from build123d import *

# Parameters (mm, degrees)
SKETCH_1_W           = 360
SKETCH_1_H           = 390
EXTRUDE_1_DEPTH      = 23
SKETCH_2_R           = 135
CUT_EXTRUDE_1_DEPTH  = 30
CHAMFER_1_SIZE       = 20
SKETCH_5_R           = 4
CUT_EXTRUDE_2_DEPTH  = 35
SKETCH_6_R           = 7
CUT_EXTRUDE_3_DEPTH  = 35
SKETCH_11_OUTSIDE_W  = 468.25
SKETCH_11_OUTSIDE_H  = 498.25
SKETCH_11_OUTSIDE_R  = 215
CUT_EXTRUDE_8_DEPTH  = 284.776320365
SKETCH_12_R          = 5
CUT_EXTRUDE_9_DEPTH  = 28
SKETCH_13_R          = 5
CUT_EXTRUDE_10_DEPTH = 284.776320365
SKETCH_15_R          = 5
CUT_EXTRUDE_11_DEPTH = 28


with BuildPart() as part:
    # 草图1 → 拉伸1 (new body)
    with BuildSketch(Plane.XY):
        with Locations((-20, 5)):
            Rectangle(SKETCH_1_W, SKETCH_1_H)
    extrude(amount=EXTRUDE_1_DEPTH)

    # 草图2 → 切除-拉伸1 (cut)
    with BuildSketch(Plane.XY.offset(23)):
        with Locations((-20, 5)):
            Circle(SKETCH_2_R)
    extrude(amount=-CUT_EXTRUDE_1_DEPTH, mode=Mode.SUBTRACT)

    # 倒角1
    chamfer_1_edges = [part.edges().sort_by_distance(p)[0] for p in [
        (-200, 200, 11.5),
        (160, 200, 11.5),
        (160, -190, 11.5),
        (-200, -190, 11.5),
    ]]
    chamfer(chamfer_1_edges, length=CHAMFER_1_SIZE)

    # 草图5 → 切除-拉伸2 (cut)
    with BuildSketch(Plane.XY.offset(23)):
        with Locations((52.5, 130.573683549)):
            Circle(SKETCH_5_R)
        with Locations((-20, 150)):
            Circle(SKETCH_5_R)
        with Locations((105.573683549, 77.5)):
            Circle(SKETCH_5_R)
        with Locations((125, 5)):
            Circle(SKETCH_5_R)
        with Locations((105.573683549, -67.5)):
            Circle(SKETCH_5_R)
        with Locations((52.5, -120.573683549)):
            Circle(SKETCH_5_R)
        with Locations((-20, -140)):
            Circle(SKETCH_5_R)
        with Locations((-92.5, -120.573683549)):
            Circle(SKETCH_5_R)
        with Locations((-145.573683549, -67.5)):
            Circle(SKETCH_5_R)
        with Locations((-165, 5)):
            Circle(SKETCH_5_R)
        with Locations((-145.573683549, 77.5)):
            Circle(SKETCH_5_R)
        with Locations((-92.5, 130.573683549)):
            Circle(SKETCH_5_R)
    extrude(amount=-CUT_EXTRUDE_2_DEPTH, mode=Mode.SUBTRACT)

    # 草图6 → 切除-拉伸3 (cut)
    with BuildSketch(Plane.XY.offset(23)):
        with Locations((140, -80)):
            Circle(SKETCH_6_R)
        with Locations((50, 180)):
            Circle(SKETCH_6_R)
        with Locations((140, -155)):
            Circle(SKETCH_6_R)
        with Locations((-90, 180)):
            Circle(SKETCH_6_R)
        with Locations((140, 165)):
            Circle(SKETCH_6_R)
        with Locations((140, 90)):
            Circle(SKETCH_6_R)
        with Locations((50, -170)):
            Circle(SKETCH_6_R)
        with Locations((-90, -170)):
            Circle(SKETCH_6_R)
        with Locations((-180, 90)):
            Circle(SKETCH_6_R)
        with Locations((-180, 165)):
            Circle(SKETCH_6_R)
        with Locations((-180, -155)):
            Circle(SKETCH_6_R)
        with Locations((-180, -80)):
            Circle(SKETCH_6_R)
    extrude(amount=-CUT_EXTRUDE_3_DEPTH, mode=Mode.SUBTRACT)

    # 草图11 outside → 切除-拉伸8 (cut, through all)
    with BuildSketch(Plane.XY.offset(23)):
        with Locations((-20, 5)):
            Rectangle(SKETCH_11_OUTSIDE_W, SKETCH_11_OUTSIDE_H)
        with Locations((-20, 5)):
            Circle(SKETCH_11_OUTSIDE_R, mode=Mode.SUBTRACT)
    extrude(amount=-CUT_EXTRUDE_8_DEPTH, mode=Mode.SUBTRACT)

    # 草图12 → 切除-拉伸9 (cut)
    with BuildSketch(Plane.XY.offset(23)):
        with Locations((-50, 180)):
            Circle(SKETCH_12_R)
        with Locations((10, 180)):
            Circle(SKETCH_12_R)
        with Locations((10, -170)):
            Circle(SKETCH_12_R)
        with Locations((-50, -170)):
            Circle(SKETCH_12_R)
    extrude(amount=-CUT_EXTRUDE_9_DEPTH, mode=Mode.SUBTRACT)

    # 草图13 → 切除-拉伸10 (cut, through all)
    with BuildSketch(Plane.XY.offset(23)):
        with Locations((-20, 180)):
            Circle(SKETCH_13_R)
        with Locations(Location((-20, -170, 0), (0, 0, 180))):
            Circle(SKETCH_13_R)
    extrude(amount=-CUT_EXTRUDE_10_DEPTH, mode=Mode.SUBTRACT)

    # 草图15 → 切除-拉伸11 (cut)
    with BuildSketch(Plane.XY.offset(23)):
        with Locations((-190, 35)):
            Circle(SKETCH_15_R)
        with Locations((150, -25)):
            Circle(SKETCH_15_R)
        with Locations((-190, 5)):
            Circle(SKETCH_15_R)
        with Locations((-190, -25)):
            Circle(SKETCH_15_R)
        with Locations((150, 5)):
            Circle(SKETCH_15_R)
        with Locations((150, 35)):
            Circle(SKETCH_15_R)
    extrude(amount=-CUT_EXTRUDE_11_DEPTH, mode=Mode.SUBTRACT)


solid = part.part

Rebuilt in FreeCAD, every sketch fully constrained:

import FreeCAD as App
import Part
import Sketcher


def edges_at(feature, points):
    """Names of the edges that pass closest to the given points."""
    edges = feature.Shape.Edges
    near = lambda p: min(range(len(edges)), key=lambda i: edges[i].distToShape(Part.Vertex(*p))[0])
    return sorted({f"Edge{near(p) + 1}" for p in points})

doc = App.newDocument("Part")
params = doc.addObject("Spreadsheet::Sheet", "Params")
for row, (alias, value) in enumerate([
    ("sketch1_width", "360 mm"),
    ("sketch1_height", "390 mm"),
    ("pad1_length", "23 mm"),
    ("sketch2_diameter", "270 mm"),
    ("pocket1_length", "30 mm"),
    ("chamfer_size", "20 mm"),
    ("sketch3_diameter", "8 mm"),
    ("pocket2_length", "35 mm"),
    ("sketch4_diameter", "14 mm"),
    ("pocket3_length", "35 mm"),
    ("sketch5_diameter", "430 mm"),
    ("sketch5_width", "468.25 mm"),
    ("sketch5_height", "498.25 mm"),
    ("sketch6_diameter", "10 mm"),
    ("pocket5_length", "28 mm"),
    ("sketch7_diameter", "10 mm"),
    ("sketch8_diameter", "10 mm"),
    ("pocket7_length", "28 mm"),
], start=1):
    params.set(f"A{row}", alias)
    params.set(f"B{row}", "=" + value)
    params.setAlias(f"B{row}", alias)

body = doc.addObject("PartDesign::Body", "Body")

# Sketch on XY plane
sketch1 = doc.addObject("Sketcher::SketchObject", "Sketch")
body.addObject(sketch1)
sketch1.AttachmentSupport = (doc.XY_Plane, [""])
sketch1.MapMode = "FlatFace"
sketch1.addGeometry([
    Part.LineSegment(App.Vector(-200, 200, 0), App.Vector(-200, -190, 0)),
    Part.LineSegment(App.Vector(-200, -190, 0), App.Vector(160, -190, 0)),
    Part.LineSegment(App.Vector(160, -190, 0), App.Vector(160, 200, 0)),
    Part.LineSegment(App.Vector(160, 200, 0), App.Vector(-200, 200, 0)),
], False)
sketch1.addConstraint([
    Sketcher.Constraint("Coincident", 0, 2, 1, 1),
    Sketcher.Constraint("Coincident", 1, 2, 2, 1),
    Sketcher.Constraint("Coincident", 2, 2, 3, 1),
    Sketcher.Constraint("Coincident", 3, 2, 0, 1),
    Sketcher.Constraint("Vertical", 0),
    Sketcher.Constraint("Horizontal", 1),
    Sketcher.Constraint("Vertical", 2),
    Sketcher.Constraint("Horizontal", 3),
    Sketcher.Constraint("DistanceX", 1, 1, 1, 2, 360.0),
    Sketcher.Constraint("DistanceY", 0, 2, 0, 1, 390.0),
    Sketcher.Constraint("DistanceX", 0, 2, -1, 1, 200.0),
    Sketcher.Constraint("DistanceY", 0, 2, -1, 1, 190.0),
])
sketch1.setExpression("Constraints[8]", "Params.sketch1_width")
sketch1.setExpression("Constraints[9]", "Params.sketch1_height")
pad1 = doc.addObject("PartDesign::Pad", "Pad")
body.addObject(pad1)
pad1.Profile = sketch1
pad1.setExpression("Length", "Params.pad1_length")

# Sketch on XY plane
sketch2 = doc.addObject("Sketcher::SketchObject", "Sketch001")
body.addObject(sketch2)
sketch2.AttachmentSupport = (doc.XY_Plane, [""])
sketch2.MapMode = "FlatFace"
sketch2.AttachmentOffset = App.Placement(App.Vector(0, 0, 23), App.Rotation())
sketch2.addGeometry(Part.Circle(App.Vector(-20, 5, 0), App.Vector(0, 0, 1), 135), False)
sketch2.addConstraint([
    Sketcher.Constraint("Diameter", 0, 270.0),
    Sketcher.Constraint("DistanceX", 0, 3, -1, 1, 20.0),
    Sketcher.Constraint("DistanceY", -1, 1, 0, 3, 5.0),
])
sketch2.setExpression("Constraints[0]", "Params.sketch2_diameter")
pocket1 = doc.addObject("PartDesign::Pocket", "Pocket")
body.addObject(pocket1)
pocket1.Profile = sketch2
pocket1.setExpression("Length", "Params.pocket1_length")
doc.recompute()

chamfer = doc.addObject("PartDesign::Chamfer", "Chamfer")
body.addObject(chamfer)
chamfer.Base = (pocket1, edges_at(pocket1, [
    (-200, 200, 11.5),
    (160, 200, 11.5),
    (160, -190, 11.5),
    (-200, -190, 11.5),
]))
chamfer.setExpression("Size", "Params.chamfer_size")

# Sketch on XY plane
sketch3 = doc.addObject("Sketcher::SketchObject", "Sketch002")
body.addObject(sketch3)
sketch3.AttachmentSupport = (doc.XY_Plane, [""])
sketch3.MapMode = "FlatFace"
sketch3.AttachmentOffset = App.Placement(App.Vector(0, 0, 23), App.Rotation())
sketch3.addGeometry([
    Part.Circle(App.Vector(52.5, 130.6, 0), App.Vector(0, 0, 1), 4),  # 0
    Part.Circle(App.Vector(-20, 150, 0), App.Vector(0, 0, 1), 4),  # 1
    Part.Circle(App.Vector(105.6, 77.5, 0), App.Vector(0, 0, 1), 4),  # 2
    Part.Circle(App.Vector(125, 5, 0), App.Vector(0, 0, 1), 4),  # 3
    Part.Circle(App.Vector(105.6, -67.5, 0), App.Vector(0, 0, 1), 4),  # 4
    Part.Circle(App.Vector(52.5, -120.6, 0), App.Vector(0, 0, 1), 4),  # 5
    Part.Circle(App.Vector(-20, -140, 0), App.Vector(0, 0, 1), 4),  # 6
    Part.Circle(App.Vector(-92.5, -120.6, 0), App.Vector(0, 0, 1), 4),  # 7
    Part.Circle(App.Vector(-145.6, -67.5, 0), App.Vector(0, 0, 1), 4),  # 8
    Part.Circle(App.Vector(-165, 5, 0), App.Vector(0, 0, 1), 4),  # 9
    Part.Circle(App.Vector(-145.6, 77.5, 0), App.Vector(0, 0, 1), 4),  # 10
    Part.Circle(App.Vector(-92.5, 130.6, 0), App.Vector(0, 0, 1), 4),  # 11
], False)
sketch3.addConstraint([
    Sketcher.Constraint("Equal", 0, 1),
    Sketcher.Constraint("Equal", 1, 2),
    Sketcher.Constraint("Equal", 2, 3),
    Sketcher.Constraint("Equal", 3, 4),
    Sketcher.Constraint("Equal", 4, 5),
    Sketcher.Constraint("Equal", 5, 6),
    Sketcher.Constraint("Equal", 6, 7),
    Sketcher.Constraint("Equal", 7, 8),
    Sketcher.Constraint("Equal", 8, 9),
    Sketcher.Constraint("Equal", 9, 10),
    Sketcher.Constraint("Equal", 10, 11),
    Sketcher.Constraint("Horizontal", 5, 3, 7, 3),
    Sketcher.Constraint("Horizontal", 4, 3, 8, 3),
    Sketcher.Constraint("Horizontal", 3, 3, 9, 3),
    Sketcher.Constraint("Horizontal", 2, 3, 10, 3),
    Sketcher.Constraint("Horizontal", 0, 3, 11, 3),
    Sketcher.Constraint("Vertical", 2, 3, 4, 3),
    Sketcher.Constraint("Vertical", 0, 3, 5, 3),
    Sketcher.Constraint("Vertical", 1, 3, 6, 3),
    Sketcher.Constraint("Vertical", 8, 3, 10, 3),
    Sketcher.Constraint("Vertical", 7, 3, 11, 3),
    Sketcher.Constraint("Diameter", 0, 8.0),
    Sketcher.Constraint("DistanceX", 1, 3, -1, 1, 20.0),
    Sketcher.Constraint("DistanceY", -1, 1, 1, 3, 150.0),
    Sketcher.Constraint("DistanceX", -1, 1, 3, 3, 125.0),
    Sketcher.Constraint("DistanceY", -1, 1, 3, 3, 5.0),
    Sketcher.Constraint("DistanceY", 6, 3, -1, 1, 140.0),
    Sketcher.Constraint("DistanceX", 9, 3, -1, 1, 165.0),
    Sketcher.Constraint("DistanceY", 4, 3, 2, 3, 145.0),
    Sketcher.Constraint("DistanceX", 7, 3, 5, 3, 145.0),
    Sketcher.Constraint("DistanceX", -1, 1, 0, 3, 52.5),
    Sketcher.Constraint("DistanceY", -1, 1, 2, 3, 77.5),
    Sketcher.Constraint("DistanceY", -1, 1, 0, 3, 130.573684),
    Sketcher.Constraint("DistanceX", -1, 1, 2, 3, 105.573684),
    Sketcher.Constraint("DistanceY", 5, 3, -1, 1, 120.573684),
    Sketcher.Constraint("DistanceX", 8, 3, -1, 1, 145.573684),
])
sketch3.setExpression("Constraints[21]", "Params.sketch3_diameter")
pocket2 = doc.addObject("PartDesign::Pocket", "Pocket001")
body.addObject(pocket2)
pocket2.Profile = sketch3
pocket2.setExpression("Length", "Params.pocket2_length")

# Sketch on XY plane
sketch4 = doc.addObject("Sketcher::SketchObject", "Sketch003")
body.addObject(sketch4)
sketch4.AttachmentSupport = (doc.XY_Plane, [""])
sketch4.MapMode = "FlatFace"
sketch4.AttachmentOffset = App.Placement(App.Vector(0, 0, 23), App.Rotation())
sketch4.addGeometry([
    Part.Circle(App.Vector(140, -80, 0), App.Vector(0, 0, 1), 7),  # 0
    Part.Circle(App.Vector(50, 180, 0), App.Vector(0, 0, 1), 7),  # 1
    Part.Circle(App.Vector(140, -155, 0), App.Vector(0, 0, 1), 7),  # 2
    Part.Circle(App.Vector(-90, 180, 0), App.Vector(0, 0, 1), 7),  # 3
    Part.Circle(App.Vector(140, 165, 0), App.Vector(0, 0, 1), 7),  # 4
    Part.Circle(App.Vector(140, 90, 0), App.Vector(0, 0, 1), 7),  # 5
    Part.Circle(App.Vector(50, -170, 0), App.Vector(0, 0, 1), 7),  # 6
    Part.Circle(App.Vector(-90, -170, 0), App.Vector(0, 0, 1), 7),  # 7
    Part.Circle(App.Vector(-180, 90, 0), App.Vector(0, 0, 1), 7),  # 8
    Part.Circle(App.Vector(-180, 165, 0), App.Vector(0, 0, 1), 7),  # 9
    Part.Circle(App.Vector(-180, -155, 0), App.Vector(0, 0, 1), 7),  # 10
    Part.Circle(App.Vector(-180, -80, 0), App.Vector(0, 0, 1), 7),  # 11
], False)
sketch4.addConstraint([
    Sketcher.Constraint("Equal", 0, 1),
    Sketcher.Constraint("Equal", 1, 2),
    Sketcher.Constraint("Equal", 2, 3),
    Sketcher.Constraint("Equal", 3, 4),
    Sketcher.Constraint("Equal", 4, 5),
    Sketcher.Constraint("Equal", 5, 6),
    Sketcher.Constraint("Equal", 6, 7),
    Sketcher.Constraint("Equal", 7, 8),
    Sketcher.Constraint("Equal", 8, 9),
    Sketcher.Constraint("Equal", 9, 10),
    Sketcher.Constraint("Equal", 10, 11),
    Sketcher.Constraint("Horizontal", 1, 3, 3, 3),
    Sketcher.Constraint("Horizontal", 6, 3, 7, 3),
    Sketcher.Constraint("Horizontal", 5, 3, 8, 3),
    Sketcher.Constraint("Horizontal", 4, 3, 9, 3),
    Sketcher.Constraint("Horizontal", 2, 3, 10, 3),
    Sketcher.Constraint("Horizontal", 0, 3, 11, 3),
    Sketcher.Constraint("Vertical", 0, 3, 2, 3),
    Sketcher.Constraint("Vertical", 2, 3, 4, 3),
    Sketcher.Constraint("Vertical", 4, 3, 5, 3),
    Sketcher.Constraint("Vertical", 1, 3, 6, 3),
    Sketcher.Constraint("Vertical", 3, 3, 7, 3),
    Sketcher.Constraint("Vertical", 8, 3, 9, 3),
    Sketcher.Constraint("Vertical", 9, 3, 10, 3),
    Sketcher.Constraint("Vertical", 10, 3, 11, 3),
    Sketcher.Constraint("Diameter", 0, 14.0),
    Sketcher.Constraint("DistanceX", -1, 1, 0, 3, 140.0),
    Sketcher.Constraint("DistanceY", 0, 3, -1, 1, 80.0),
    Sketcher.Constraint("DistanceX", -1, 1, 1, 3, 50.0),
    Sketcher.Constraint("DistanceY", -1, 1, 1, 3, 180.0),
    Sketcher.Constraint("DistanceY", 2, 3, -1, 1, 155.0),
    Sketcher.Constraint("DistanceX", 3, 3, -1, 1, 90.0),
    Sketcher.Constraint("DistanceY", -1, 1, 4, 3, 165.0),
    Sketcher.Constraint("DistanceY", -1, 1, 5, 3, 90.0),
    Sketcher.Constraint("DistanceY", 6, 3, -1, 1, 170.0),
    Sketcher.Constraint("DistanceX", 8, 3, -1, 1, 180.0),
])
sketch4.setExpression("Constraints[25]", "Params.sketch4_diameter")
pocket3 = doc.addObject("PartDesign::Pocket", "Pocket002")
body.addObject(pocket3)
pocket3.Profile = sketch4
pocket3.setExpression("Length", "Params.pocket3_length")

# Sketch on XY plane
sketch5 = doc.addObject("Sketcher::SketchObject", "Sketch004")
body.addObject(sketch5)
sketch5.AttachmentSupport = (doc.XY_Plane, [""])
sketch5.MapMode = "FlatFace"
sketch5.AttachmentOffset = App.Placement(App.Vector(0, 0, 23), App.Rotation())
sketch5.addGeometry([
    Part.LineSegment(App.Vector(-254, 254, 0), App.Vector(-254, -244, 0)),  # 0
    Part.LineSegment(App.Vector(-254, -244, 0), App.Vector(214, -244, 0)),  # 1
    Part.LineSegment(App.Vector(214, -244, 0), App.Vector(214, 254, 0)),  # 2
    Part.LineSegment(App.Vector(214, 254, 0), App.Vector(-254, 254, 0)),  # 3
    Part.Circle(App.Vector(-20, 5, 0), App.Vector(0, 0, 1), 215),  # 4
], False)
sketch5.addConstraint([
    Sketcher.Constraint("Coincident", 0, 2, 1, 1),
    Sketcher.Constraint("Coincident", 1, 2, 2, 1),
    Sketcher.Constraint("Coincident", 2, 2, 3, 1),
    Sketcher.Constraint("Coincident", 3, 2, 0, 1),
    Sketcher.Constraint("Vertical", 0),
    Sketcher.Constraint("Horizontal", 1),
    Sketcher.Constraint("Vertical", 2),
    Sketcher.Constraint("Horizontal", 3),
    Sketcher.Constraint("Diameter", 4, 430.0),
    Sketcher.Constraint("DistanceX", 4, 3, -1, 1, 20.0),
    Sketcher.Constraint("DistanceY", -1, 1, 4, 3, 5.0),
    Sketcher.Constraint("DistanceX", 1, 1, 1, 2, 468.25),
    Sketcher.Constraint("DistanceY", 0, 2, 0, 1, 498.25),
    Sketcher.Constraint("DistanceX", 0, 2, -1, 1, 254.125),
    Sketcher.Constraint("DistanceY", 0, 2, -1, 1, 244.125),
])
sketch5.setExpression("Constraints[8]", "Params.sketch5_diameter")
sketch5.setExpression("Constraints[11]", "Params.sketch5_width")
sketch5.setExpression("Constraints[12]", "Params.sketch5_height")
pocket4 = doc.addObject("PartDesign::Pocket", "Pocket003")
body.addObject(pocket4)
pocket4.Profile = sketch5
pocket4.Type = "ThroughAll"

# Sketch on XY plane
sketch6 = doc.addObject("Sketcher::SketchObject", "Sketch005")
body.addObject(sketch6)
sketch6.AttachmentSupport = (doc.XY_Plane, [""])
sketch6.MapMode = "FlatFace"
sketch6.AttachmentOffset = App.Placement(App.Vector(0, 0, 23), App.Rotation())
sketch6.addGeometry([
    Part.Circle(App.Vector(-50, 180, 0), App.Vector(0, 0, 1), 5),
    Part.Circle(App.Vector(10, 180, 0), App.Vector(0, 0, 1), 5),
    Part.Circle(App.Vector(10, -170, 0), App.Vector(0, 0, 1), 5),
    Part.Circle(App.Vector(-50, -170, 0), App.Vector(0, 0, 1), 5),
], False)
sketch6.addConstraint([
    Sketcher.Constraint("Equal", 0, 1),
    Sketcher.Constraint("Equal", 1, 2),
    Sketcher.Constraint("Equal", 2, 3),
    Sketcher.Constraint("Horizontal", 0, 3, 1, 3),
    Sketcher.Constraint("Horizontal", 2, 3, 3, 3),
    Sketcher.Constraint("Vertical", 1, 3, 2, 3),
    Sketcher.Constraint("Vertical", 0, 3, 3, 3),
    Sketcher.Constraint("Diameter", 0, 10.0),
    Sketcher.Constraint("DistanceX", 0, 3, -1, 1, 50.0),
    Sketcher.Constraint("DistanceY", -1, 1, 0, 3, 180.0),
    Sketcher.Constraint("DistanceX", -1, 1, 1, 3, 10.0),
    Sketcher.Constraint("DistanceY", 2, 3, -1, 1, 170.0),
])
sketch6.setExpression("Constraints[7]", "Params.sketch6_diameter")
pocket5 = doc.addObject("PartDesign::Pocket", "Pocket004")
body.addObject(pocket5)
pocket5.Profile = sketch6
pocket5.setExpression("Length", "Params.pocket5_length")

# Sketch on XY plane
sketch7 = doc.addObject("Sketcher::SketchObject", "Sketch006")
body.addObject(sketch7)
sketch7.AttachmentSupport = (doc.XY_Plane, [""])
sketch7.MapMode = "FlatFace"
sketch7.AttachmentOffset = App.Placement(App.Vector(0, 0, 23), App.Rotation())
sketch7.addGeometry([
    Part.Circle(App.Vector(-20, 180, 0), App.Vector(0, 0, 1), 5),
    Part.Circle(App.Vector(-20, -170, 0), App.Vector(0, 0, 1), 5),
], False)
sketch7.addConstraint([
    Sketcher.Constraint("Equal", 0, 1),
    Sketcher.Constraint("Vertical", 0, 3, 1, 3),
    Sketcher.Constraint("Diameter", 0, 10.0),
    Sketcher.Constraint("DistanceX", 0, 3, -1, 1, 20.0),
    Sketcher.Constraint("DistanceY", -1, 1, 0, 3, 180.0),
    Sketcher.Constraint("DistanceY", 1, 3, -1, 1, 170.0),
])
sketch7.setExpression("Constraints[2]", "Params.sketch7_diameter")
pocket6 = doc.addObject("PartDesign::Pocket", "Pocket005")
body.addObject(pocket6)
pocket6.Profile = sketch7
pocket6.Type = "ThroughAll"

# Sketch on XY plane
sketch8 = doc.addObject("Sketcher::SketchObject", "Sketch007")
body.addObject(sketch8)
sketch8.AttachmentSupport = (doc.XY_Plane, [""])
sketch8.MapMode = "FlatFace"
sketch8.AttachmentOffset = App.Placement(App.Vector(0, 0, 23), App.Rotation())
sketch8.addGeometry([
    Part.Circle(App.Vector(-190, 35, 0), App.Vector(0, 0, 1), 5),  # 0
    Part.Circle(App.Vector(150, -25, 0), App.Vector(0, 0, 1), 5),  # 1
    Part.Circle(App.Vector(-190, 5, 0), App.Vector(0, 0, 1), 5),  # 2
    Part.Circle(App.Vector(-190, -25, 0), App.Vector(0, 0, 1), 5),  # 3
    Part.Circle(App.Vector(150, 5, 0), App.Vector(0, 0, 1), 5),  # 4
    Part.Circle(App.Vector(150, 35, 0), App.Vector(0, 0, 1), 5),  # 5
], False)
sketch8.addConstraint([
    Sketcher.Constraint("Equal", 0, 1),
    Sketcher.Constraint("Equal", 1, 2),
    Sketcher.Constraint("Equal", 2, 3),
    Sketcher.Constraint("Equal", 3, 4),
    Sketcher.Constraint("Equal", 4, 5),
    Sketcher.Constraint("Horizontal", 1, 3, 3, 3),
    Sketcher.Constraint("Horizontal", 2, 3, 4, 3),
    Sketcher.Constraint("Horizontal", 0, 3, 5, 3),
    Sketcher.Constraint("Vertical", 0, 3, 2, 3),
    Sketcher.Constraint("Vertical", 2, 3, 3, 3),
    Sketcher.Constraint("Vertical", 1, 3, 4, 3),
    Sketcher.Constraint("Vertical", 4, 3, 5, 3),
    Sketcher.Constraint("Diameter", 0, 10.0),
    Sketcher.Constraint("DistanceX", 0, 3, -1, 1, 190.0),
    Sketcher.Constraint("DistanceY", -1, 1, 0, 3, 35.0),
    Sketcher.Constraint("DistanceX", -1, 1, 1, 3, 150.0),
    Sketcher.Constraint("DistanceY", 1, 3, -1, 1, 25.0),
    Sketcher.Constraint("DistanceY", -1, 1, 2, 3, 5.0),
])
sketch8.setExpression("Constraints[12]", "Params.sketch8_diameter")
pocket7 = doc.addObject("PartDesign::Pocket", "Pocket006")
body.addObject(pocket7)
pocket7.Profile = sketch8
pocket7.setExpression("Length", "Params.pocket7_length")

doc.recompute()
